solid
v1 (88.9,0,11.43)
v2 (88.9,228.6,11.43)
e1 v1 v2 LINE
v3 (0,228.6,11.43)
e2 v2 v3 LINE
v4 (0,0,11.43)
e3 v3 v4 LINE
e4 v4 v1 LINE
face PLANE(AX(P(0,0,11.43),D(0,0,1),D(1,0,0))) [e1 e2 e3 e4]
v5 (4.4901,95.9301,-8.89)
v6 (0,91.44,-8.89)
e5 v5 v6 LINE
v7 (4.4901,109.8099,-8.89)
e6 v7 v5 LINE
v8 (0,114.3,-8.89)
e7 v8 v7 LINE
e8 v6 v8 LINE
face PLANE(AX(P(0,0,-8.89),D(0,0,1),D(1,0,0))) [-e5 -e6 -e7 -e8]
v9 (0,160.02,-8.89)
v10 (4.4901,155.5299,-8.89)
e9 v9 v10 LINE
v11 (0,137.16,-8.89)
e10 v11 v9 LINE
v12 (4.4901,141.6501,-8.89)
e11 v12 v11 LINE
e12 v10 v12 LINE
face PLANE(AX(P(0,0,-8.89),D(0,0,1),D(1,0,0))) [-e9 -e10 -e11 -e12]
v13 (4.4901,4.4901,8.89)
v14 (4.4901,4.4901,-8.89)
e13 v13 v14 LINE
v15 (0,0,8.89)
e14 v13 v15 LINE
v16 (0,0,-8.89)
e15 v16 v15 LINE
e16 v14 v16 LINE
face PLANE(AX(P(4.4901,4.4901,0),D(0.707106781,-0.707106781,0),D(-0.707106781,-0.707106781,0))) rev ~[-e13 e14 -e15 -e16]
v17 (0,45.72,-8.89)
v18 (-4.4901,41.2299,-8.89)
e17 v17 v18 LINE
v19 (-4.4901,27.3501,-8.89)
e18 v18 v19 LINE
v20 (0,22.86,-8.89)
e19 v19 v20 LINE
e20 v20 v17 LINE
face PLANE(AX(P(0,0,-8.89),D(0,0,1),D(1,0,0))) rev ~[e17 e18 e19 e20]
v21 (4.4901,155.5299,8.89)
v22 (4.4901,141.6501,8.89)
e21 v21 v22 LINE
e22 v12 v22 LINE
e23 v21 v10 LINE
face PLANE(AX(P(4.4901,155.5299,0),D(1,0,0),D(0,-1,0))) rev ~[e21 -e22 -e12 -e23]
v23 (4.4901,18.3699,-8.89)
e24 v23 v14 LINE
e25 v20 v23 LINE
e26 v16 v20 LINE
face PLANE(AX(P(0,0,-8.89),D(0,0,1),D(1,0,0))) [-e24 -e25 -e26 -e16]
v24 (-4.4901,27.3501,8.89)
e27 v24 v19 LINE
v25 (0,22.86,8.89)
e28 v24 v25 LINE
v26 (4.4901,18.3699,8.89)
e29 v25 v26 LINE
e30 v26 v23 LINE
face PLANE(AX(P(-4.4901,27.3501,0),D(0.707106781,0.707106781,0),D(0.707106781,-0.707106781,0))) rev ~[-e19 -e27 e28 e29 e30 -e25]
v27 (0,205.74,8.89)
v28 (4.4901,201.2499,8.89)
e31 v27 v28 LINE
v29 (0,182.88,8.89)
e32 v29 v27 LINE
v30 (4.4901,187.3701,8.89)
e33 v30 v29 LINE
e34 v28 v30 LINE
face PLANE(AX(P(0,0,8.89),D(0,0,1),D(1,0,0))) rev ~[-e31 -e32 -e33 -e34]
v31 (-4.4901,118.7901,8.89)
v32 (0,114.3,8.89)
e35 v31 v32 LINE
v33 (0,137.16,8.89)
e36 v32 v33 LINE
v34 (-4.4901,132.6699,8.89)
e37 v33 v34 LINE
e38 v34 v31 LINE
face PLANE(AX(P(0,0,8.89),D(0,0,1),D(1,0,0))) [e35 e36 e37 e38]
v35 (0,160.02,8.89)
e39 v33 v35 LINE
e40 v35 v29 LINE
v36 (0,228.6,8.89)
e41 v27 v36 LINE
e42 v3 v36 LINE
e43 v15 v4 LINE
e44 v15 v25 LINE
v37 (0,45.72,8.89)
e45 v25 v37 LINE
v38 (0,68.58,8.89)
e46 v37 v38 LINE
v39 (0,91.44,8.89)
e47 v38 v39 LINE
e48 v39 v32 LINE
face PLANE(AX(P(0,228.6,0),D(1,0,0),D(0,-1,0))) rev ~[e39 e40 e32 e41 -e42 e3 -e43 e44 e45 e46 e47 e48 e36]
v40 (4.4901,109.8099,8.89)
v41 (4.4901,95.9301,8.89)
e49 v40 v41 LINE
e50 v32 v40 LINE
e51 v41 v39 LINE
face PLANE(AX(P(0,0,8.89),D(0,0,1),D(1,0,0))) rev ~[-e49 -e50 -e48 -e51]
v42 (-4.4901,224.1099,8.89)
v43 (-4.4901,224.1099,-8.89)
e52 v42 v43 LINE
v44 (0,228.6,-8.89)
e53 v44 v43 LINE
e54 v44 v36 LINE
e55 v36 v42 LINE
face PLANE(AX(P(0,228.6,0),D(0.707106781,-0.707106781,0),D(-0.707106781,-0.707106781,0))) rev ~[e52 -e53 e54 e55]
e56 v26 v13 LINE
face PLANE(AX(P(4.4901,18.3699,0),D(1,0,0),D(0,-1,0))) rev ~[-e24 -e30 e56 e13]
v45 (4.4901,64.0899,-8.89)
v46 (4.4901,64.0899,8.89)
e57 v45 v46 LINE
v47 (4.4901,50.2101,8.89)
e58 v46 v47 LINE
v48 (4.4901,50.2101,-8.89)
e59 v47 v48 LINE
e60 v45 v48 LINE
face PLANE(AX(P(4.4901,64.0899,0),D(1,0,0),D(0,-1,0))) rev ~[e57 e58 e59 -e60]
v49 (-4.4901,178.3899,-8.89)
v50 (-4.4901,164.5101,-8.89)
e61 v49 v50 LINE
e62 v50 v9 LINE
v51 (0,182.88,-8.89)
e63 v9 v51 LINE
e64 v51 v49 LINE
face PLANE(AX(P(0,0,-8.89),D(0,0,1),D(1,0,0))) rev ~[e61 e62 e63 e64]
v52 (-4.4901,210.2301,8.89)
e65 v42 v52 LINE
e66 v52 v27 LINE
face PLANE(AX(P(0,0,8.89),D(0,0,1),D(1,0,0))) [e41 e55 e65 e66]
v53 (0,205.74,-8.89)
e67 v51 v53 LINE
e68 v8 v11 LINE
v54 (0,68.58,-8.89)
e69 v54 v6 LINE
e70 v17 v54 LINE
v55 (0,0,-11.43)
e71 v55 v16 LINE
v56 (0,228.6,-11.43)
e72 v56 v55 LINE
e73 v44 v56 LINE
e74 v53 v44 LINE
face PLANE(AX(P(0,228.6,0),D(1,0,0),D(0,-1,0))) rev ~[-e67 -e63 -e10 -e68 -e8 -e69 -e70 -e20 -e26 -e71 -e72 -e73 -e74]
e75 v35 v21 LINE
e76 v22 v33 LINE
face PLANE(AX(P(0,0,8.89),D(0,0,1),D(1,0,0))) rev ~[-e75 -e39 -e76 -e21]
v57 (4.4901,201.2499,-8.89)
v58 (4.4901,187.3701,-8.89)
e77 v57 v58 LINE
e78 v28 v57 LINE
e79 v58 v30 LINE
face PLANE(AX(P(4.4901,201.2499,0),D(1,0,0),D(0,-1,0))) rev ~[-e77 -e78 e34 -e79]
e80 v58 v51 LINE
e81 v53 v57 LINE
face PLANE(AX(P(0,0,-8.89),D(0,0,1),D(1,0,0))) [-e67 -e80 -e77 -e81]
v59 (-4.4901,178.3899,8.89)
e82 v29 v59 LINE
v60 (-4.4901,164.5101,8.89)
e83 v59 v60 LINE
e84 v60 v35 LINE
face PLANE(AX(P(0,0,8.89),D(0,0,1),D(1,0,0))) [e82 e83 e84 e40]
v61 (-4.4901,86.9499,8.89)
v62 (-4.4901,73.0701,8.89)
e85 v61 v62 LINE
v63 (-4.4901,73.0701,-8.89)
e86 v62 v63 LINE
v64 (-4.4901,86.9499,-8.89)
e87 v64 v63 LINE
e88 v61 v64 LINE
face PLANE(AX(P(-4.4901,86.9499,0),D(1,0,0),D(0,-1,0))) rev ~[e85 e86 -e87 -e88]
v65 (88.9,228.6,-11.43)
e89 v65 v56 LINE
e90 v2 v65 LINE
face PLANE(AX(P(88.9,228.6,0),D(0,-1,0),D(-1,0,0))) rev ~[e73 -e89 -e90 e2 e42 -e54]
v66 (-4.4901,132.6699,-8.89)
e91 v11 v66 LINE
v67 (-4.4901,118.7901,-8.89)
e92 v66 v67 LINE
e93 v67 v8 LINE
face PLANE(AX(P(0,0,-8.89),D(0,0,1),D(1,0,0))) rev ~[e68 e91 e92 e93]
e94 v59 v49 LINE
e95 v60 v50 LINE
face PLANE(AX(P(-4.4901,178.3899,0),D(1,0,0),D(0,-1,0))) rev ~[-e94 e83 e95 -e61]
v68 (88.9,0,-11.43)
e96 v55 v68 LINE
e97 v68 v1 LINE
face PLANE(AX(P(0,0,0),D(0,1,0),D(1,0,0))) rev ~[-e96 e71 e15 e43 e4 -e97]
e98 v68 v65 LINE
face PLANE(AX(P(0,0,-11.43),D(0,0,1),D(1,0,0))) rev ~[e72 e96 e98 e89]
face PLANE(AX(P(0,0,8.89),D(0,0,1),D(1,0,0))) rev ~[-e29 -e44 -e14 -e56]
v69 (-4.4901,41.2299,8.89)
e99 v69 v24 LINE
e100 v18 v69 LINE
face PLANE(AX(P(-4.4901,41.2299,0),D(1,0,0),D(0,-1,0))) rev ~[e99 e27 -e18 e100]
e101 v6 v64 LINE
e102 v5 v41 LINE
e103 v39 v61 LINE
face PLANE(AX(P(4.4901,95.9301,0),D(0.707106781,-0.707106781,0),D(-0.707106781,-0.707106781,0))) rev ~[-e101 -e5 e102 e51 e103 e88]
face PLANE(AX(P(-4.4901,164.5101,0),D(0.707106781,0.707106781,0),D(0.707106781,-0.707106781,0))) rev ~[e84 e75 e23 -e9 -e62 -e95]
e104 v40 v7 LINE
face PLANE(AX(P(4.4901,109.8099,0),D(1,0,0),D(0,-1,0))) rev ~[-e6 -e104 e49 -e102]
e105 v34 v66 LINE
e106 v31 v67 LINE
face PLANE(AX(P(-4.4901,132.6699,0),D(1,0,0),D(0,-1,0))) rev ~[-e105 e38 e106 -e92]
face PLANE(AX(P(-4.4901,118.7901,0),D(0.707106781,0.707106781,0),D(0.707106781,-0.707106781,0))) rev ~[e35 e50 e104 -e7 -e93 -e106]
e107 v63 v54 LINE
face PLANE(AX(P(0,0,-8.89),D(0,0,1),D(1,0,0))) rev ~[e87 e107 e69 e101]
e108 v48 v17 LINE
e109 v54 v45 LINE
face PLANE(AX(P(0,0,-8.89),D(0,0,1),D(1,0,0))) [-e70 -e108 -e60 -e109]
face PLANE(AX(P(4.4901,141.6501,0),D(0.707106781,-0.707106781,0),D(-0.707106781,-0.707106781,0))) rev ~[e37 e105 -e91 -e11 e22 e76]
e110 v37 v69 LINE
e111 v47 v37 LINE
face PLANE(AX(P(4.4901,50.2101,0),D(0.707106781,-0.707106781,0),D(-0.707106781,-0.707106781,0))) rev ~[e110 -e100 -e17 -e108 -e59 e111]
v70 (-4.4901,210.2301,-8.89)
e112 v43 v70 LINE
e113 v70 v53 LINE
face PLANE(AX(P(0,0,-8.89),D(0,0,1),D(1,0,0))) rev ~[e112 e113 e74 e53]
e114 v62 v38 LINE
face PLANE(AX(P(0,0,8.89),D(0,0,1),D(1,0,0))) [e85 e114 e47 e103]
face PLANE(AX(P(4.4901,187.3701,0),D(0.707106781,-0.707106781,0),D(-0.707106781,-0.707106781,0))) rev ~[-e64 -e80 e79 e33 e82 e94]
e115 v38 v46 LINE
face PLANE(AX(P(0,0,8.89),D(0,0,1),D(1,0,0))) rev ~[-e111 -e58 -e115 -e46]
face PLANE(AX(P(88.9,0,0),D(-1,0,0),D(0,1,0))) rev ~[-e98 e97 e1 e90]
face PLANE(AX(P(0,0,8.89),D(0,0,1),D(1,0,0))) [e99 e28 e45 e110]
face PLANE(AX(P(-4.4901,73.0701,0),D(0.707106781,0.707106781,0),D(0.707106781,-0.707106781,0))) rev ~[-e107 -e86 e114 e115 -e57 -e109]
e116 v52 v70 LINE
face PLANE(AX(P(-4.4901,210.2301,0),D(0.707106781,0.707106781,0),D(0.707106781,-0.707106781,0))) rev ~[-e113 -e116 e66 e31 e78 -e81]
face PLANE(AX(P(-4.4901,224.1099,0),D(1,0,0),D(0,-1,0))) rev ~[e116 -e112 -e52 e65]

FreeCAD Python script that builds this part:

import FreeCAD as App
import Part
import Sketcher
from FreeCAD import Vector
Q = App.Units.Quantity

doc = App.newDocument("Part")
body = doc.addObject("PartDesign::Body", "Body")

# Sketch on XY plane
sketch1 = body.newObject("Sketcher::SketchObject", "Sketch")
sketch1.AttachmentSupport = (doc.getObject("XY_Plane"), [""])
sketch1.MapMode = "FlatFace"
sketch1.addGeometry([
    Part.LineSegment(Vector(0, 229, 0), Vector(0, 0, 0)),
    Part.LineSegment(Vector(0, 0, 0), Vector(89, 0, 0)),
    Part.LineSegment(Vector(89, 0, 0), Vector(89, 229, 0)),
    Part.LineSegment(Vector(89, 229, 0), Vector(0, 229, 0)),
], False)
sketch1.addConstraint([
    Sketcher.Constraint("Coincident", 0, 2, 1, 1),
    Sketcher.Constraint("Coincident", 1, 2, 2, 1),
    Sketcher.Constraint("Coincident", 2, 2, 3, 1),
    Sketcher.Constraint("Coincident", 3, 2, 0, 1),
    Sketcher.Constraint("Vertical", 0),
    Sketcher.Constraint("Horizontal", 1),
    Sketcher.Constraint("Vertical", 2),
    Sketcher.Constraint("Horizontal", 3),
    Sketcher.Constraint("Coincident", 0, 2, -1, 1),
    Sketcher.Constraint("DistanceY", 0, 2, 0, 1, Q("9 in")),
    Sketcher.Constraint("DistanceX", 1, 1, 1, 2, Q("3.5 in")),
])
pad1 = body.newObject("PartDesign::Pad", "Pad")
pad1.Profile = sketch1
pad1.Length = Q("0.9 in")
pad1.Midplane = True

# Sketch on XY plane
sketch2 = body.newObject("Sketcher::SketchObject", "Sketch001")
sketch2.AttachmentSupport = (doc.getObject("XY_Plane"), [""])
sketch2.MapMode = "FlatFace"
sketch2.addGeometry([
    Part.LineSegment(Vector(4, 18, 0), Vector(0, 23, 0)),  # 0
    Part.LineSegment(Vector(0, 23, 0), Vector(0, 0, 0)),  # 1
    Part.LineSegment(Vector(0, 0, 0), Vector(4, 4, 0)),  # 2
    Part.LineSegment(Vector(4, 4, 0), Vector(4, 18, 0)),  # 3
    Part.LineSegment(Vector(0, 206, 0), Vector(0, 183, 0)),  # 4
    Part.LineSegment(Vector(0, 183, 0), Vector(4, 187, 0)),  # 5
    Part.LineSegment(Vector(4, 187, 0), Vector(4, 201, 0)),  # 6
    Part.LineSegment(Vector(4, 201, 0), Vector(0, 206, 0)),  # 7
    Part.LineSegment(Vector(0, 160, 0), Vector(0, 137, 0)),  # 8
    Part.LineSegment(Vector(0, 137, 0), Vector(4, 142, 0)),  # 9
    Part.LineSegment(Vector(4, 142, 0), Vector(4, 156, 0)),  # 10
    Part.LineSegment(Vector(4, 156, 0), Vector(0, 160, 0)),  # 11
    Part.LineSegment(Vector(0, 114, 0), Vector(0, 91, 0)),  # 12
    Part.LineSegment(Vector(0, 91, 0), Vector(4, 96, 0)),  # 13
    Part.LineSegment(Vector(4, 96, 0), Vector(4, 110, 0)),  # 14
    Part.LineSegment(Vector(4, 110, 0), Vector(0, 114, 0)),  # 15
    Part.LineSegment(Vector(4, 50, 0), Vector(4, 64, 0)),  # 16
    Part.LineSegment(Vector(4, 64, 0), Vector(0, 69, 0)),  # 17
    Part.LineSegment(Vector(0, 69, 0), Vector(0, 46, 0)),  # 18
    Part.LineSegment(Vector(0, 46, 0), Vector(4, 50, 0)),  # 19
], False)
sketch2.addConstraint([
    Sketcher.Constraint("Coincident", 0, 2, 1, 1),
    Sketcher.Constraint("Coincident", 1, 2, 2, 1),
    Sketcher.Constraint("Coincident", 2, 2, 3, 1),
    Sketcher.Constraint("Coincident", 3, 2, 0, 1),
    Sketcher.Constraint("Coincident", 4, 2, 5, 1),
    Sketcher.Constraint("Coincident", 5, 2, 6, 1),
    Sketcher.Constraint("Coincident", 6, 2, 7, 1),
    Sketcher.Constraint("Coincident", 7, 2, 4, 1),
    Sketcher.Constraint("Coincident", 8, 2, 9, 1),
    Sketcher.Constraint("Coincident", 9, 2, 10, 1),
    Sketcher.Constraint("Coincident", 10, 2, 11, 1),
    Sketcher.Constraint("Coincident", 11, 2, 8, 1),
    Sketcher.Constraint("Coincident", 12, 2, 13, 1),
    Sketcher.Constraint("Coincident", 13, 2, 14, 1),
    Sketcher.Constraint("Coincident", 14, 2, 15, 1),
    Sketcher.Constraint("Coincident", 15, 2, 12, 1),
    Sketcher.Constraint("Coincident", 16, 2, 17, 1),
    Sketcher.Constraint("Coincident", 17, 2, 18, 1),
    Sketcher.Constraint("Coincident", 18, 2, 19, 1),
    Sketcher.Constraint("Coincident", 19, 2, 16, 1),
    Sketcher.Constraint("Vertical", 1),
    Sketcher.Constraint("Vertical", 3),
    Sketcher.Constraint("Vertical", 4),
    Sketcher.Constraint("Vertical", 6),
    Sketcher.Constraint("Vertical", 8),
    Sketcher.Constraint("Vertical", 10),
    Sketcher.Constraint("Vertical", 12),
    Sketcher.Constraint("Vertical", 14),
    Sketcher.Constraint("Vertical", 16),
    Sketcher.Constraint("Vertical", 18),
    Sketcher.Constraint("Coincident", 1, 2, -1, 1),
    Sketcher.Constraint("PointOnObject", 4, 2, -2),
    Sketcher.Constraint("PointOnObject", 8, 2, -2),
    Sketcher.Constraint("PointOnObject", 12, 2, -2),
    Sketcher.Constraint("PointOnObject", 17, 2, -2),
    Sketcher.Constraint("Perpendicular", 0, 2),
    Sketcher.Constraint("Parallel", 2, 5),
    Sketcher.Constraint("Perpendicular", 5, 7),
    Sketcher.Constraint("Perpendicular", 7, 9),
    Sketcher.Constraint("Perpendicular", 9, 11),
    Sketcher.Constraint("Perpendicular", 11, 13),
    Sketcher.Constraint("Perpendicular", 13, 15),
    Sketcher.Constraint("Parallel", 15, 17),
    Sketcher.Constraint("Perpendicular", 17, 19),
    Sketcher.Constraint("Vertical", 3, 2, 5, 2),
    Sketcher.Constraint("Vertical", 6, 2, 9, 2),
    Sketcher.Constraint("Vertical", 10, 2, 13, 2),
    Sketcher.Constraint("Vertical", 14, 2, 16, 2),
    Sketcher.Constraint("Equal", 1, 4),
    Sketcher.Constraint("Equal", 4, 8),
    Sketcher.Constraint("Equal", 8, 12),
    Sketcher.Constraint("Equal", 14, 16),
    Sketcher.Constraint("Equal", 0, 2),
    Sketcher.Constraint("Distance", 0, Q("0.25 in")),
    Sketcher.Constraint("DistanceY", 1, 2, 1, 1, Q("0.9 in")),
    Sketcher.Constraint("DistanceY", -1, 1, 4, 2, Q("7.2 in")),
    Sketcher.Constraint("DistanceY", -1, 1, 8, 2, Q("5.4 in")),
    Sketcher.Constraint("DistanceY", -1, 1, 12, 2, Q("3.6 in")),
    Sketcher.Constraint("DistanceY", -1, 1, 17, 2, Q("2.7 in")),
])
pocket1 = body.newObject("PartDesign::Pocket", "Pocket")
pocket1.Profile = sketch2
pocket1.Length = Q("0.7 in")
pocket1.Midplane = True

# Sketch on XY plane
sketch3 = body.newObject("Sketcher::SketchObject", "Sketch002")
sketch3.AttachmentSupport = (doc.getObject("XY_Plane"), [""])
sketch3.MapMode = "FlatFace"
sketch3.addGeometry([
    Part.LineSegment(Vector(0, 23, 0), Vector(0, 46, 0)),  # 0
    Part.LineSegment(Vector(0, 46, 0), Vector(-4, 41, 0)),  # 1
    Part.LineSegment(Vector(-4, 41, 0), Vector(-4, 27, 0)),  # 2
    Part.LineSegment(Vector(-4, 27, 0), Vector(0, 23, 0)),  # 3
    Part.LineSegment(Vector(-4, 210, 0), Vector(0, 206, 0)),  # 4
    Part.LineSegment(Vector(0, 206, 0), Vector(0, 229, 0)),  # 5
    Part.LineSegment(Vector(0, 229, 0), Vector(-4, 224, 0)),  # 6
    Part.LineSegment(Vector(-4, 224, 0), Vector(-4, 210, 0)),  # 7
    Part.LineSegment(Vector(-4, 165, 0), Vector(0, 160, 0)),  # 8
    Part.LineSegment(Vector(0, 160, 0), Vector(0, 183, 0)),  # 9
    Part.LineSegment(Vector(0, 183, 0), Vector(-4, 178, 0)),  # 10
    Part.LineSegment(Vector(-4, 178, 0), Vector(-4, 165, 0)),  # 11
    Part.LineSegment(Vector(-4, 119, 0), Vector(0, 114, 0)),  # 12
    Part.LineSegment(Vector(0, 114, 0), Vector(0, 137, 0)),  # 13
    Part.LineSegment(Vector(0, 137, 0), Vector(-4, 133, 0)),  # 14
    Part.LineSegment(Vector(-4, 133, 0), Vector(-4, 119, 0)),  # 15
    Part.LineSegment(Vector(-4, 73, 0), Vector(0, 69, 0)),  # 16
    Part.LineSegment(Vector(0, 69, 0), Vector(0, 91, 0)),  # 17
    Part.LineSegment(Vector(0, 91, 0), Vector(-4, 87, 0)),  # 18
    Part.LineSegment(Vector(-4, 87, 0), Vector(-4, 73, 0)),  # 19
], False)
sketch3.addConstraint([
    Sketcher.Constraint("Coincident", 0, 2, 1, 1),
    Sketcher.Constraint("Coincident", 1, 2, 2, 1),
    Sketcher.Constraint("Coincident", 2, 2, 3, 1),
    Sketcher.Constraint("Coincident", 3, 2, 0, 1),
    Sketcher.Constraint("Coincident", 4, 2, 5, 1),
    Sketcher.Constraint("Coincident", 5, 2, 6, 1),
    Sketcher.Constraint("Coincident", 6, 2, 7, 1),
    Sketcher.Constraint("Coincident", 7, 2, 4, 1),
    Sketcher.Constraint("Coincident", 8, 2, 9, 1),
    Sketcher.Constraint("Coincident", 9, 2, 10, 1),
    Sketcher.Constraint("Coincident", 10, 2, 11, 1),
    Sketcher.Constraint("Coincident", 11, 2, 8, 1),
    Sketcher.Constraint("Coincident", 12, 2, 13, 1),
    Sketcher.Constraint("Coincident", 13, 2, 14, 1),
    Sketcher.Constraint("Coincident", 14, 2, 15, 1),
    Sketcher.Constraint("Coincident", 15, 2, 12, 1),
    Sketcher.Constraint("Coincident", 16, 2, 17, 1),
    Sketcher.Constraint("Coincident", 17, 2, 18, 1),
    Sketcher.Constraint("Coincident", 18, 2, 19, 1),
    Sketcher.Constraint("Coincident", 19, 2, 16, 1),
    Sketcher.Constraint("Vertical", 0),
    Sketcher.Constraint("Vertical", 2),
    Sketcher.Constraint("Vertical", 5),
    Sketcher.Constraint("Vertical", 7),
    Sketcher.Constraint("Vertical", 9),
    Sketcher.Constraint("Vertical", 11),
    Sketcher.Constraint("Vertical", 13),
    Sketcher.Constraint("Vertical", 15),
    Sketcher.Constraint("Vertical", 17),
    Sketcher.Constraint("Vertical", 19),
    Sketcher.Constraint("PointOnObject", 0, 2, -2),
    Sketcher.Constraint("PointOnObject", 4, 2, -2),
    Sketcher.Constraint("PointOnObject", 8, 2, -2),
    Sketcher.Constraint("PointOnObject", 12, 2, -2),
    Sketcher.Constraint("PointOnObject", 16, 2, -2),
    Sketcher.Constraint("Perpendicular", 1, 3),
    Sketcher.Constraint("Parallel", 3, 4),
    Sketcher.Constraint("Perpendicular", 4, 6),
    Sketcher.Constraint("Perpendicular", 6, 8),
    Sketcher.Constraint("Perpendicular", 8, 10),
    Sketcher.Constraint("Perpendicular", 10, 12),
    Sketcher.Constraint("Perpendicular", 12, 14),
    Sketcher.Constraint("Perpendicular", 14, 16),
    Sketcher.Constraint("Perpendicular", 16, 18),
    Sketcher.Constraint("Vertical", 2, 2, 6, 2),
    Sketcher.Constraint("Vertical", 7, 2, 10, 2),
    Sketcher.Constraint("Vertical", 11, 2, 14, 2),
    Sketcher.Constraint("Vertical", 15, 2, 18, 2),
    Sketcher.Constraint("Equal", 0, 5),
    Sketcher.Constraint("Equal", 5, 9),
    Sketcher.Constraint("Equal", 9, 13),
    Sketcher.Constraint("Equal", 13, 17),
    Sketcher.Constraint("Equal", 1, 3),
    Sketcher.Constraint("DistanceY", -1, 1, 5, 2, Q("9 in")),
    Sketcher.Constraint("Distance", 1, Q("0.25 in")),
    Sketcher.Constraint("DistanceY", 0, 1, 0, 2, Q("0.9 in")),
    Sketcher.Constraint("DistanceY", -1, 1, 0, 2, Q("1.8 in")),
    Sketcher.Constraint("DistanceY", -1, 1, 8, 2, Q("6.3 in")),
    Sketcher.Constraint("DistanceY", -1, 1, 12, 2, Q("4.5 in")),
    Sketcher.Constraint("DistanceY", -1, 1, 16, 2, Q("2.7 in")),
])
pad2 = body.newObject("PartDesign::Pad", "Pad001")
pad2.Profile = sketch3
pad2.Length = Q("0.7 in")
pad2.Midplane = True

doc.recompute()
